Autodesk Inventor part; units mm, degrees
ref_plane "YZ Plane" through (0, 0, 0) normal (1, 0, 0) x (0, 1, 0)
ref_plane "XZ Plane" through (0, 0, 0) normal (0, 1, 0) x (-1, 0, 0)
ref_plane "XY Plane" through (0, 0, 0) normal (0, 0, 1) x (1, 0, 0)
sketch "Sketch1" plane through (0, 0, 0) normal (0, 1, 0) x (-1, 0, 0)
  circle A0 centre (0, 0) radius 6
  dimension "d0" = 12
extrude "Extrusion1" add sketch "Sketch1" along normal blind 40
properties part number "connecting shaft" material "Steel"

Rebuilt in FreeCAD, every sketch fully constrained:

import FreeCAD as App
import Part
import Sketcher

doc = App.newDocument("Part")
body = doc.addObject("PartDesign::Body", "Body")

# Sketch on XZ plane
sketch1 = doc.addObject("Sketcher::SketchObject", "Sketch")
body.addObject(sketch1)
sketch1.AttachmentSupport = (doc.XZ_Plane, [""])
sketch1.MapMode = "FlatFace"
sketch1.addGeometry(Part.Circle(App.Vector(0, 0, 0), App.Vector(0, 0, 1), 6), False)
sketch1.addConstraint([
    Sketcher.Constraint("Coincident", 0, 3, -1, 1),
    Sketcher.Constraint("Diameter", 0, 12.0),
])
pad1 = doc.addObject("PartDesign::Pad", "Pad")
body.addObject(pad1)
pad1.Profile = sketch1
pad1.Length = 40
pad1.Reversed = True

doc.recompute()
